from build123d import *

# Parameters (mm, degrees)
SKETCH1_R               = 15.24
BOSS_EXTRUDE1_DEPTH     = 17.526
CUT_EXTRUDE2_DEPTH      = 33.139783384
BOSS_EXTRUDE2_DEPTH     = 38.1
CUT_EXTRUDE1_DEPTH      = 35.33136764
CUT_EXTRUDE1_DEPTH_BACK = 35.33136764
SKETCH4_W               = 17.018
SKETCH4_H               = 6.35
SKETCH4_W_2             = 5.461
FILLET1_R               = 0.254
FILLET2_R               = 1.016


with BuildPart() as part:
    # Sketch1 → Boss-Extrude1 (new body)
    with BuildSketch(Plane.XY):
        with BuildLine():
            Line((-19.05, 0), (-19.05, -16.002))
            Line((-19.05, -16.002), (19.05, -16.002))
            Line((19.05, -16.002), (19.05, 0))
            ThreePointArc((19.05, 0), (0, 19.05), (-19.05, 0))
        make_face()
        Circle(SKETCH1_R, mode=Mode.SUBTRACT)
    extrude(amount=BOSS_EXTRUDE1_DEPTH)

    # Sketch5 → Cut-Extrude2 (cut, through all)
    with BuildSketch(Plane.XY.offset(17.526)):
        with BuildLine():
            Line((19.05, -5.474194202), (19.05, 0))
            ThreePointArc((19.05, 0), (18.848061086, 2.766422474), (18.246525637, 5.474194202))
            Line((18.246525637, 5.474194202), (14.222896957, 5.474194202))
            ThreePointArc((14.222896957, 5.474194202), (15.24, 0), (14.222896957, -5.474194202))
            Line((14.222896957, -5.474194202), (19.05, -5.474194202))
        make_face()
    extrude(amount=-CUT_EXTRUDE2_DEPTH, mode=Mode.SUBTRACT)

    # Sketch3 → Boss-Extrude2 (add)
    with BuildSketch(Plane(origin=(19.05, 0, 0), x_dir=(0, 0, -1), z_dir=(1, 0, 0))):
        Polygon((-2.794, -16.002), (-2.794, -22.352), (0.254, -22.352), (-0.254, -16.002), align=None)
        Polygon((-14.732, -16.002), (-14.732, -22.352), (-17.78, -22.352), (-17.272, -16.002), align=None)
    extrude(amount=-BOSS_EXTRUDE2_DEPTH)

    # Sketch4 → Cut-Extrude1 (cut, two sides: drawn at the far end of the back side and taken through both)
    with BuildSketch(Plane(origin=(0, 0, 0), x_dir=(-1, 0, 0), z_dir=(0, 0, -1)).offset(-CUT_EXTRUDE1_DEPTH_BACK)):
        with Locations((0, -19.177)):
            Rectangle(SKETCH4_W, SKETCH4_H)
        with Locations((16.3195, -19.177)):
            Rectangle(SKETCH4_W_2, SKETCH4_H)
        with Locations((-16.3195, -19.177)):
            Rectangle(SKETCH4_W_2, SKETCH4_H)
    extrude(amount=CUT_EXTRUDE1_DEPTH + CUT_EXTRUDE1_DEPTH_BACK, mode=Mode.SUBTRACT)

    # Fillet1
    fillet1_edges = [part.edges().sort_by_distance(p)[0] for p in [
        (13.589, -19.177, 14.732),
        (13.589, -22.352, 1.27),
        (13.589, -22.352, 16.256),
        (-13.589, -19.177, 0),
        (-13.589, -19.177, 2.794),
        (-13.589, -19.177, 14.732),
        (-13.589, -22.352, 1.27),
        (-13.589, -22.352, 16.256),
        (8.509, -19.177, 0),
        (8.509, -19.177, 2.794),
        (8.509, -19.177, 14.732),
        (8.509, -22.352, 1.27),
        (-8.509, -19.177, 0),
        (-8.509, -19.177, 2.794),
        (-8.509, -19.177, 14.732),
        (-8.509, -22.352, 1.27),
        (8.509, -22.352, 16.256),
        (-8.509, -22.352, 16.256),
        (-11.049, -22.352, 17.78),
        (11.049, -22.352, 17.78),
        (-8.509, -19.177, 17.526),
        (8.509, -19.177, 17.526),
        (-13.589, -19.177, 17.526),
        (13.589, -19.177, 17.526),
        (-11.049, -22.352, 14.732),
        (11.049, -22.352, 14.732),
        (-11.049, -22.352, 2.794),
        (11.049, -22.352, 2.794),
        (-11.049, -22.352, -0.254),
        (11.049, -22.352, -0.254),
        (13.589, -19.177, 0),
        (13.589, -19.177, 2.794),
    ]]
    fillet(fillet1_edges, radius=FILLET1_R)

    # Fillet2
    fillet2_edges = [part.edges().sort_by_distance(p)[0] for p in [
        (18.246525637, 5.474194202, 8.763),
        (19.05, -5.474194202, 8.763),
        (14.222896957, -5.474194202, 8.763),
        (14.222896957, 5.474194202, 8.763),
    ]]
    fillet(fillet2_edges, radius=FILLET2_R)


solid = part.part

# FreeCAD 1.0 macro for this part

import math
import FreeCAD as App
import Part
import Sketcher
from FreeCAD import Vector
Q = App.Units.Quantity


def edges_at(feature, points):
    """Names of the edges that pass closest to the given points."""
    edges = feature.Shape.Edges
    near = lambda p: min(range(len(edges)), key=lambda i: edges[i].distToShape(Part.Vertex(*p))[0])
    return sorted({f"Edge{near(p) + 1}" for p in points})


def add_polygon(sketch, points):
    """Adds a closed chain of lines whose ends are joined by coincident constraints."""
    first, n = sketch.GeometryCount, len(points)
    for a, b in zip(points, points[1:] + points[:1]):
        sketch.addGeometry(Part.LineSegment(App.Vector(*a, 0), App.Vector(*b, 0)), False)
    for i in range(n):
        sketch.addConstraint(Sketcher.Constraint("Coincident", first + i, 2, first + (i + 1) % n, 1))

doc = App.newDocument("Part")
body = doc.addObject("PartDesign::Body", "Body")

# Sketch on XY plane
sketch1 = body.newObject("Sketcher::SketchObject", "Sketch")
sketch1.AttachmentSupport = (doc.getObject("XY_Plane"), [""])
sketch1.MapMode = "FlatFace"
sketch1.addGeometry(Part.LineSegment(Vector(-19, 0, 0), Vector(-19, -16, 0)), False)
sketch1.addGeometry(Part.LineSegment(Vector(-19, -16, 0), Vector(19, -16, 0)), False)
sketch1.addGeometry(Part.LineSegment(Vector(19, -16, 0), Vector(19, 0, 0)), False)
sketch1.addGeometry(Part.ArcOfCircle(Part.Circle(Vector(0, 0, 0), Vector(0, 0, 1), 19), math.radians(0), math.radians(180)), False)
sketch1.addGeometry(Part.Circle(Vector(0, 0, 0), Vector(0, 0, 1), 15), False)
sketch1.addConstraint(Sketcher.Constraint("Coincident", 0, 2, 1, 1))
sketch1.addConstraint(Sketcher.Constraint("Coincident", 1, 2, 2, 1))
sketch1.addConstraint(Sketcher.Constraint("Tangent", 2, 2, 3, 1))
sketch1.addConstraint(Sketcher.Constraint("Tangent", 3, 2, 0, 1))
sketch1.addConstraint(Sketcher.Constraint("Vertical", 0))
sketch1.addConstraint(Sketcher.Constraint("Horizontal", 1))
sketch1.addConstraint(Sketcher.Constraint("Vertical", 2))
sketch1.addConstraint(Sketcher.Constraint("Coincident", 3, 3, -1, 1))
sketch1.addConstraint(Sketcher.Constraint("Coincident", 4, 3, -1, 1))
sketch1.addConstraint(Sketcher.Constraint("Diameter", 4, Q("1.2 in")))
sketch1.addConstraint(Sketcher.Constraint("Radius", 3, Q("0.75 in")))
sketch1.addConstraint(Sketcher.Constraint("DistanceY", 0, 2, 0, 1, Q("0.63 in")))
pad1 = body.newObject("PartDesign::Pad", "Pad")
pad1.Profile = sketch1
pad1.Length = Q("0.69 in")

# Sketch on XY plane
sketch2 = body.newObject("Sketcher::SketchObject", "Sketch001")
sketch2.AttachmentSupport = (doc.getObject("XY_Plane"), [""])
sketch2.MapMode = "FlatFace"
sketch2.AttachmentOffset = App.Placement(Vector(0, 0, 0.69 * 25.4), App.Rotation())
sketch2.addGeometry(Part.LineSegment(Vector(19.1, -5.5, 0), Vector(19.1, 0, 0)), False)
sketch2.addGeometry(Part.ArcOfCircle(Part.Circle(Vector(0, 0, 0), Vector(0, 0, 1), 19), math.radians(0), math.radians(16.7)), False)
sketch2.addGeometry(Part.LineSegment(Vector(18.2, 5.5, 0), Vector(14.2, 5.5, 0)), False)
sketch2.addGeometry(Part.ArcOfCircle(Part.Circle(Vector(0, 0, 0), Vector(0, 0, 1), 15.2), math.radians(-21), math.radians(21)), False)
sketch2.addGeometry(Part.LineSegment(Vector(14.2, -5.5, 0), Vector(19.1, -5.5, 0)), False)
sketch2.addConstraint(Sketcher.Constraint("Tangent", 0, 2, 1, 1))
sketch2.addConstraint(Sketcher.Constraint("Coincident", 1, 2, 2, 1))
sketch2.addConstraint(Sketcher.Constraint("Coincident", 2, 2, 3, 2))
sketch2.addConstraint(Sketcher.Constraint("Coincident", 3, 1, 4, 1))
sketch2.addConstraint(Sketcher.Constraint("Coincident", 4, 2, 0, 1))
sketch2.addConstraint(Sketcher.Constraint("Vertical", 0))
sketch2.addConstraint(Sketcher.Constraint("Horizontal", 2))
sketch2.addConstraint(Sketcher.Constraint("Horizontal", 4))
sketch2.addConstraint(Sketcher.Constraint("Coincident", 1, 3, -1, 1))
sketch2.addConstraint(Sketcher.Constraint("Coincident", 3, 3, -1, 1))
sketch2.addConstraint(Sketcher.Constraint("Vertical", 2, 2, 3, 1))
sketch2.addConstraint(Sketcher.Constraint("Radius", 3, Q("0.6 in")))
sketch2.addConstraint(Sketcher.Constraint("Radius", 1, Q("0.75 in")))
sketch2.addConstraint(Sketcher.Constraint("DistanceX", 2, 2, 2, 1, Q("4.023629 mm")))
pocket1 = body.newObject("PartDesign::Pocket", "Pocket")
pocket1.Profile = sketch2
pocket1.Type = "ThroughAll"

# Sketch on YZ plane
sketch3 = body.newObject("Sketcher::SketchObject", "Sketch002")
sketch3.AttachmentSupport = (doc.getObject("YZ_Plane"), [""])
sketch3.MapMode = "FlatFace"
sketch3.AttachmentOffset = App.Placement(Vector(0, 0, 0.75 * 25.4), App.Rotation())
add_polygon(sketch3, [(-16, 2.8), (-22.4, 2.8), (-22.4, -0.3), (-16, 0.3)])  # lines 0-3
add_polygon(sketch3, [(-22.4, 14.7), (-16, 14.7), (-16, 17.3), (-22.4, 17.8)])  # lines 4-7
sketch3.addConstraint(Sketcher.Constraint("Horizontal", 0))
sketch3.addConstraint(Sketcher.Constraint("Vertical", 1))
sketch3.addConstraint(Sketcher.Constraint("Vertical", 3))
sketch3.addConstraint(Sketcher.Constraint("Horizontal", 4))
sketch3.addConstraint(Sketcher.Constraint("Vertical", 5))
sketch3.addConstraint(Sketcher.Constraint("Vertical", 7))
sketch3.addConstraint(Sketcher.Constraint("Vertical", 3, 2, 4, 2))
sketch3.addConstraint(Sketcher.Constraint("Vertical", 1, 2, 6, 2))
sketch3.addConstraint(Sketcher.Constraint("Equal", 3, 5))
sketch3.addConstraint(Sketcher.Constraint("Equal", 1, 7))
sketch3.addConstraint(Sketcher.Constraint("DistanceY", 3, 1, 3, 2, Q("0.1 in")))
sketch3.addConstraint(Sketcher.Constraint("DistanceX", 0, 2, 0, 1, Q("0.25 in")))
sketch3.addConstraint(Sketcher.Constraint("DistanceY", 1, 2, 1, 1, Q("0.12 in")))
sketch3.addConstraint(Sketcher.Constraint("DistanceY", -1, 1, 6, 2, Q("0.7 in")))
sketch3.addConstraint(Sketcher.Constraint("DistanceX", 0, 2, -1, 1, Q("0.88 in")))
sketch3.addConstraint(Sketcher.Constraint("DistanceY", -1, 1, 0, 2, Q("0.11 in")))
pad2 = body.newObject("PartDesign::Pad", "Pad001")
pad2.Profile = sketch3
pad2.Length = Q("1.5 in")
pad2.Reversed = True

# Sketch on XY plane
sketch4 = body.newObject("Sketcher::SketchObject", "Sketch003")
sketch4.AttachmentSupport = (doc.getObject("XY_Plane"), [""])
sketch4.MapMode = "FlatFace"
add_polygon(sketch4, [(9, -16), (9, -22), (-9, -22), (-9, -16)])  # lines 0-3
add_polygon(sketch4, [(-14, -16), (-14, -22), (-19, -22), (-19, -16)])  # lines 4-7
add_polygon(sketch4, [(19, -16), (19, -22), (14, -22), (14, -16)])  # lines 8-11
sketch4.addConstraint(Sketcher.Constraint("Vertical", 0))
sketch4.addConstraint(Sketcher.Constraint("Horizontal", 1))
sketch4.addConstraint(Sketcher.Constraint("Vertical", 2))
sketch4.addConstraint(Sketcher.Constraint("Horizontal", 3))
sketch4.addConstraint(Sketcher.Constraint("Vertical", 4))
sketch4.addConstraint(Sketcher.Constraint("Horizontal", 5))
sketch4.addConstraint(Sketcher.Constraint("Vertical", 6))
sketch4.addConstraint(Sketcher.Constraint("Horizontal", 7))
sketch4.addConstraint(Sketcher.Constraint("Vertical", 8))
sketch4.addConstraint(Sketcher.Constraint("Horizontal", 9))
sketch4.addConstraint(Sketcher.Constraint("Vertical", 10))
sketch4.addConstraint(Sketcher.Constraint("Horizontal", 11))
sketch4.addConstraint(Sketcher.Constraint("Symmetric", 5, 2, 8, 2, -2))
sketch4.addConstraint(Sketcher.Constraint("Symmetric", 7, 2, 10, 2, -2))
sketch4.addConstraint(Sketcher.Constraint("Horizontal", 1, 2, 4, 2))
sketch4.addConstraint(Sketcher.Constraint("Horizontal", 3, 2, 6, 2))
sketch4.addConstraint(Sketcher.Constraint("DistanceX", 1, 2, 1, 1, Q("0.67 in")))
sketch4.addConstraint(Sketcher.Constraint("DistanceY", 0, 2, 0, 1, Q("0.25 in")))
sketch4.addConstraint(Sketcher.Constraint("DistanceX", 4, 2, 1, 2, Q("0.2 in")))
sketch4.addConstraint(Sketcher.Constraint("DistanceX", 0, 2, 9, 2, Q("0.2 in")))
sketch4.addConstraint(Sketcher.Constraint("DistanceX", 5, 2, 5, 1, Q("0.215 in")))
sketch4.addConstraint(Sketcher.Constraint("DistanceY", 0, 2, -1, 1, Q("0.88 in")))
pocket2 = body.newObject("PartDesign::Pocket", "Pocket001")
pocket2.Profile = sketch4
pocket2.Type = "ThroughAll"
pocket2.Midplane = True
doc.recompute()

fillet = body.newObject("PartDesign::Fillet", "Fillet")
fillet.Base = (pocket2, edges_at(pocket2, [
    (13.589, -19.177, 14.732),
    (13.589, -22.352, 1.27),
    (13.589, -22.352, 16.256),
    (-13.589, -19.177, 0),
    (-13.589, -19.177, 2.794),
    (-13.589, -19.177, 14.732),
    (-13.589, -22.352, 1.27),
    (-13.589, -22.352, 16.256),
    (8.509, -19.177, 0),
    (8.509, -19.177, 2.794),
    (8.509, -19.177, 14.732),
    (8.509, -22.352, 1.27),
    (-8.509, -19.177, 0),
    (-8.509, -19.177, 2.794),
    (-8.509, -19.177, 14.732),
    (-8.509, -22.352, 1.27),
    (8.509, -22.352, 16.256),
    (-8.509, -22.352, 16.256),
    (-11.049, -22.352, 17.78),
    (11.049, -22.352, 17.78),
    (-8.509, -19.177, 17.526),
    (8.509, -19.177, 17.526),
    (-13.589, -19.177, 17.526),
    (13.589, -19.177, 17.526),
    (-11.049, -22.352, 14.732),
    (11.049, -22.352, 14.732),
    (-11.049, -22.352, 2.794),
    (11.049, -22.352, 2.794),
    (-11.049, -22.352, -0.254),
    (11.049, -22.352, -0.254),
    (13.589, -19.177, 0),
    (13.589, -19.177, 2.794),
]))
fillet.Radius = Q("0.01 in")
doc.recompute()

fillet2 = body.newObject("PartDesign::Fillet", "Fillet001")
fillet2.Base = (fillet, edges_at(fillet, [
    (18.247, 5.474, 8.763),
    (19.05, -5.474, 8.763),
    (14.223, -5.474, 8.763),
    (14.223, 5.474, 8.763),
]))
fillet2.Radius = Q("0.04 in")

doc.recompute()
